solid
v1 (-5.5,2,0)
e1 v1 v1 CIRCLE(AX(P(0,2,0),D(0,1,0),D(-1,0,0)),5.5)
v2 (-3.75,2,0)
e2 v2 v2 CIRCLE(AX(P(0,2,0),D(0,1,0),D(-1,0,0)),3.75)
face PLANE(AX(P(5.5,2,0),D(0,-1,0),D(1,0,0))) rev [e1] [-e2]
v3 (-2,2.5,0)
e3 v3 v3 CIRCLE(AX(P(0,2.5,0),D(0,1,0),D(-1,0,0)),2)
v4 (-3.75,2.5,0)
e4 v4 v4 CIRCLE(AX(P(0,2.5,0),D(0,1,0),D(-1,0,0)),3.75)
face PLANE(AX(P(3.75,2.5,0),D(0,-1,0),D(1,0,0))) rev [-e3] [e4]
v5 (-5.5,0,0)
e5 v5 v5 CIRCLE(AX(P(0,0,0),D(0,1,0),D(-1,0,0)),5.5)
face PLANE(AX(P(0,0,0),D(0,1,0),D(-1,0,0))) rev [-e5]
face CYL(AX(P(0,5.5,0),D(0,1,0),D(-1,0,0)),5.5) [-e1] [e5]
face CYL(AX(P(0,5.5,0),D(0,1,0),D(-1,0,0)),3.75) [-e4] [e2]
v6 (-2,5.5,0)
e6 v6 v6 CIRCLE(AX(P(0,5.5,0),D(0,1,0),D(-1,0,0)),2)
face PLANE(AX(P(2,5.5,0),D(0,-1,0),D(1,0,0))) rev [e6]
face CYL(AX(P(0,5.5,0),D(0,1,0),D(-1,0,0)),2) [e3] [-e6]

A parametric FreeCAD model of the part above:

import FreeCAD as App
import Part
import Sketcher

V = App.Vector
Q = App.Units.Quantity


def add_polygon(sketch, points):
    """Adds a closed chain of lines whose ends are joined by coincident constraints."""
    first, n = sketch.GeometryCount, len(points)
    for a, b in zip(points, points[1:] + points[:1]):
        sketch.addGeometry(Part.LineSegment(App.Vector(*a, 0), App.Vector(*b, 0)), False)
    for i in range(n):
        sketch.addConstraint(Sketcher.Constraint("Coincident", first + i, 2, first + (i + 1) % n, 1))

doc = App.newDocument("Part")
body = doc.addObject("PartDesign::Body", "Body")

# Sketch on XY plane
sketch1 = body.newObject("Sketcher::SketchObject", "Sketch")
sketch1.AttachmentSupport = (doc.getObject("XY_Plane"), [""])
sketch1.MapMode = "FlatFace"
add_polygon(sketch1, [(0, 0), (5.5, 0), (5.5, 2), (3.8, 2), (3.8, 2.5), (2, 2.5), (2, 5.5), (0, 5.5)])  # lines 0-7
sketch1.addConstraint(Sketcher.Constraint("Horizontal", 0))
sketch1.addConstraint(Sketcher.Constraint("Vertical", 1))
sketch1.addConstraint(Sketcher.Constraint("Horizontal", 2))
sketch1.addConstraint(Sketcher.Constraint("Vertical", 3))
sketch1.addConstraint(Sketcher.Constraint("Horizontal", 4))
sketch1.addConstraint(Sketcher.Constraint("Vertical", 5))
sketch1.addConstraint(Sketcher.Constraint("Horizontal", 6))
sketch1.addConstraint(Sketcher.Constraint("Vertical", 7))
sketch1.addConstraint(Sketcher.Constraint("Coincident", 7, 2, -1, 1))
sketch1.addConstraint(Sketcher.Constraint("Equal", 2, 4))
sketch1.addConstraint(Sketcher.Constraint("Equal", 6, 1))
sketch1.addConstraint(Sketcher.Constraint("Equal", 0, 7))
sketch1.addConstraint(Sketcher.Constraint("DistanceX", 6, 2, 6, 1, Q("2 mm")))
sketch1.addConstraint(Sketcher.Constraint("DistanceY", 5, 1, 5, 2, Q("3 mm")))
sketch1.addConstraint(Sketcher.Constraint("DistanceX", 0, 1, 0, 2, Q("5.5 mm")))
revolution = body.newObject("PartDesign::Revolution", "Revolution")
revolution.Profile = sketch1
revolution.ReferenceAxis = (sketch1, ["V_Axis"])
revolution.Angle = 360

doc.recompute()
